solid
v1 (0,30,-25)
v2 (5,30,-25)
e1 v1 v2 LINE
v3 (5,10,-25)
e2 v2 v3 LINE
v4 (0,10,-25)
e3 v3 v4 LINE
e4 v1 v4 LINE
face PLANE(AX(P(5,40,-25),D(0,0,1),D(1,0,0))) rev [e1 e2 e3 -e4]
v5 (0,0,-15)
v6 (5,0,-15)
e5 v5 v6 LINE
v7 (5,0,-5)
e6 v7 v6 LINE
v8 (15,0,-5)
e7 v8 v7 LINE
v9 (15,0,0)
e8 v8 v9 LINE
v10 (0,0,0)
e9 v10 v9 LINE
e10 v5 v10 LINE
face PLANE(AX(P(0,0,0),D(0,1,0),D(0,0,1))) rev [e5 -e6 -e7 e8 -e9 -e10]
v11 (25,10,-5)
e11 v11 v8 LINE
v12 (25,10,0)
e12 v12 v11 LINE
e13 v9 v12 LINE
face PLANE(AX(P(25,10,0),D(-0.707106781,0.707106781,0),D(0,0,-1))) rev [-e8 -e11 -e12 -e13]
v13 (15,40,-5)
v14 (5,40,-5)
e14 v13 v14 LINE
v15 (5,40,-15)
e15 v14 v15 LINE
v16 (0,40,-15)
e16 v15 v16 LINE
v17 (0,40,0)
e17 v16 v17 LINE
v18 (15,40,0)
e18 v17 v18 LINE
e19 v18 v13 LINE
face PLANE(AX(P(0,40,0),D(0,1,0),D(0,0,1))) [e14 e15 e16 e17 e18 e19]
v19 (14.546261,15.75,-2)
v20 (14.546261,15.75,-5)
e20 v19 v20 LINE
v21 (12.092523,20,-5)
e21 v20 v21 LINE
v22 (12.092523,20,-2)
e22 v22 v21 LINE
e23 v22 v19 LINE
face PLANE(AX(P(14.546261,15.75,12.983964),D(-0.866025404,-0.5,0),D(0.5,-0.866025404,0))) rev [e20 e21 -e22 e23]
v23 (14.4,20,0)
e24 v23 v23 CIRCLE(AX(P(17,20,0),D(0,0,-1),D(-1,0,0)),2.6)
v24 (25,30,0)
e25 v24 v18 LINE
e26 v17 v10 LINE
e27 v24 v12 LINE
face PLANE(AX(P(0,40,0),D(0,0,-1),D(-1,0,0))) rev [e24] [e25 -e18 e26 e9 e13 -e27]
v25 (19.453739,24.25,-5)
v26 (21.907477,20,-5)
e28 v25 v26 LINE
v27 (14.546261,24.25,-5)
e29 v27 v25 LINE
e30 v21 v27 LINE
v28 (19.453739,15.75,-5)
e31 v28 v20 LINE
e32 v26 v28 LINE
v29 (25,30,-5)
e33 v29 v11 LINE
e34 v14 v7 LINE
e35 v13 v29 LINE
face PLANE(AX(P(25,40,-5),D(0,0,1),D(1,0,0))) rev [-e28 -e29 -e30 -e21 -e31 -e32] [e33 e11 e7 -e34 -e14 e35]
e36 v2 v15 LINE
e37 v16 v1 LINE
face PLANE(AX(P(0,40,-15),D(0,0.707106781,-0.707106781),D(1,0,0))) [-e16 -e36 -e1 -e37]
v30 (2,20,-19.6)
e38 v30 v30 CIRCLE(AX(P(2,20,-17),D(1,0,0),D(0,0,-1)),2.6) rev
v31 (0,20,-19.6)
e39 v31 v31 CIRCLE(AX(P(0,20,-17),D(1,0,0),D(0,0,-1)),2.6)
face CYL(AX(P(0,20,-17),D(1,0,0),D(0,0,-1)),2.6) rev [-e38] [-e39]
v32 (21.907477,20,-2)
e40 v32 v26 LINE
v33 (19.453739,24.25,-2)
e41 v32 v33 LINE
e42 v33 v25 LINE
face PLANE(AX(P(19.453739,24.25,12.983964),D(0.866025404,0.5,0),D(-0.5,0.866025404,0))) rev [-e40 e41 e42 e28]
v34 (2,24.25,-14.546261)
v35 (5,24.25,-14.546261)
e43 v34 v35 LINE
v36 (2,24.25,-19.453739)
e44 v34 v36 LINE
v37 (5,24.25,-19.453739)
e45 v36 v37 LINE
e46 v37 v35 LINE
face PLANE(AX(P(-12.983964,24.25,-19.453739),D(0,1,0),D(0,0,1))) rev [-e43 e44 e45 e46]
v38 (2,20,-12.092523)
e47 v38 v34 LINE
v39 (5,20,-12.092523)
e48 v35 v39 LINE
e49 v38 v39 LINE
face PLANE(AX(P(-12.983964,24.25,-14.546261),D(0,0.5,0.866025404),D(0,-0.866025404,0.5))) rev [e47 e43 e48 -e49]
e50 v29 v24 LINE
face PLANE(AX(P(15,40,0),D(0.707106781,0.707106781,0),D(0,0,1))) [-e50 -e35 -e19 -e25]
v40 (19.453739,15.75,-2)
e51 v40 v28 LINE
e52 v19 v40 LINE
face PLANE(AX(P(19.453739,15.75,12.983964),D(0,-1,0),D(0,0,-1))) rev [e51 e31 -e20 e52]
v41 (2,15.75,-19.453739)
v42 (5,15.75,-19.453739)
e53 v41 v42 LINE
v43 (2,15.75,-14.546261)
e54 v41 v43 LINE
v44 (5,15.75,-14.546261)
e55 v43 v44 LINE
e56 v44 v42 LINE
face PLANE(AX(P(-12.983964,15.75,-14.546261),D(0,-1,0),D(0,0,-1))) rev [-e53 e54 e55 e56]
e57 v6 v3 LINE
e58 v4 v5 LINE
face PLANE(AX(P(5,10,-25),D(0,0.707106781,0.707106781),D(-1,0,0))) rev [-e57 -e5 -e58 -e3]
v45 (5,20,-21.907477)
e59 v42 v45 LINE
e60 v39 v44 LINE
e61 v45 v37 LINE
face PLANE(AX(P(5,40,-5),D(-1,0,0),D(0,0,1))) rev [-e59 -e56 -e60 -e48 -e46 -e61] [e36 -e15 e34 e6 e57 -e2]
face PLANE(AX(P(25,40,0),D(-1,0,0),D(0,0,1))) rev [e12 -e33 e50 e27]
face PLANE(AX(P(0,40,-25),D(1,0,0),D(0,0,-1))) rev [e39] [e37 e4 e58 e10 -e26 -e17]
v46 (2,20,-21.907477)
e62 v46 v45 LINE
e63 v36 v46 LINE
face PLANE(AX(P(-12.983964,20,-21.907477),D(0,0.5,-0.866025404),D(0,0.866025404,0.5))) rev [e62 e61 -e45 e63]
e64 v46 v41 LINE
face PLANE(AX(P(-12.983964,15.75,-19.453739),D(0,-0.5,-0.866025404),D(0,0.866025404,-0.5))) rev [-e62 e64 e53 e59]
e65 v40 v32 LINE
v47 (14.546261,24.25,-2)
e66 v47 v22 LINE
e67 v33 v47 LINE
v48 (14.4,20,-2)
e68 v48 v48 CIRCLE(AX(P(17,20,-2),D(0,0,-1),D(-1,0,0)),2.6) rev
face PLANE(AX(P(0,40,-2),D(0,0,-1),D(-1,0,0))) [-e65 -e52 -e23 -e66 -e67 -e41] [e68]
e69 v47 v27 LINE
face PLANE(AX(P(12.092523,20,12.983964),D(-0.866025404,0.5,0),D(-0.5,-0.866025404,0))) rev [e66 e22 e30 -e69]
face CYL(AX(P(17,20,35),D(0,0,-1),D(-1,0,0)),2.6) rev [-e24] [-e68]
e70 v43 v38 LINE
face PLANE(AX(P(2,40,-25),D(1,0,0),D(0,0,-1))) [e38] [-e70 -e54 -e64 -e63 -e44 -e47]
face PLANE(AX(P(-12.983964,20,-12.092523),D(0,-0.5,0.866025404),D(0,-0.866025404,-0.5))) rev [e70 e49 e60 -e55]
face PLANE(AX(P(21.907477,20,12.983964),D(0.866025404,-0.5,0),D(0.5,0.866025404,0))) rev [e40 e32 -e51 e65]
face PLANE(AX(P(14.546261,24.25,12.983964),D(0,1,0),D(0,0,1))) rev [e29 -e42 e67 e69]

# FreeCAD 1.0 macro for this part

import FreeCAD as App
import Part
import Sketcher

V = App.Vector
Q = App.Units.Quantity


def edges_at(feature, points):
    """Names of the edges that pass closest to the given points."""
    edges = feature.Shape.Edges
    near = lambda p: min(range(len(edges)), key=lambda i: edges[i].distToShape(Part.Vertex(*p))[0])
    return sorted({f"Edge{near(p) + 1}" for p in points})


def add_polygon(sketch, points):
    """Adds a closed chain of lines whose ends are joined by coincident constraints."""
    first, n = sketch.GeometryCount, len(points)
    for a, b in zip(points, points[1:] + points[:1]):
        sketch.addGeometry(Part.LineSegment(App.Vector(*a, 0), App.Vector(*b, 0)), False)
    for i in range(n):
        sketch.addConstraint(Sketcher.Constraint("Coincident", first + i, 2, first + (i + 1) % n, 1))

doc = App.newDocument("Part")
body = doc.addObject("PartDesign::Body", "Body")

# Sketch on XZ plane
sketch1 = doc.addObject("Sketcher::SketchObject", "Sketch")
body.addObject(sketch1)
sketch1.AttachmentSupport = (doc.XZ_Plane, [""])
sketch1.MapMode = "FlatFace"
add_polygon(sketch1, [(0, 0), (25, 0), (25, -5), (5, -5), (5, -25), (0, -25)])  # lines 0-5
sketch1.addConstraint(Sketcher.Constraint("Horizontal", 0))
sketch1.addConstraint(Sketcher.Constraint("Vertical", 1))
sketch1.addConstraint(Sketcher.Constraint("Horizontal", 2))
sketch1.addConstraint(Sketcher.Constraint("Vertical", 3))
sketch1.addConstraint(Sketcher.Constraint("Horizontal", 4))
sketch1.addConstraint(Sketcher.Constraint("Vertical", 5))
sketch1.addConstraint(Sketcher.Constraint("Coincident", 5, 2, -1, 1))
sketch1.addConstraint(Sketcher.Constraint("Equal", 4, 1))
sketch1.addConstraint(Sketcher.Constraint("Equal", 2, 3))
sketch1.addConstraint(Sketcher.Constraint("DistanceX", 0, 1, 0, 2, 25.0))
sketch1.addConstraint(Sketcher.Constraint("DistanceX", 2, 2, 2, 1, 20.0))
pad1 = doc.addObject("PartDesign::Pad", "Pad")
body.addObject(pad1)
pad1.Profile = sketch1
pad1.Length = 40
pad1.Reversed = True

# Sketch on XY plane
sketch2 = doc.addObject("Sketcher::SketchObject", "Sketch001")
body.addObject(sketch2)
sketch2.AttachmentSupport = (doc.XY_Plane, [""])
sketch2.MapMode = "FlatFace"
sketch2.AttachmentOffset = App.Placement(V(0, 0, -5), App.Rotation())
sketch2.addGeometry(Part.Circle(V(17, 20, 0), V(0, 0, 1), 2.6), False)
sketch2.addConstraint(Sketcher.Constraint("Diameter", 0, 5.2))
sketch2.addConstraint(Sketcher.Constraint("DistanceX", -1, 1, 0, 3, 17.0))
sketch2.addConstraint(Sketcher.Constraint("DistanceY", -1, 1, 0, 3, 20.0))
pocket1 = doc.addObject("PartDesign::Pocket", "Pocket")
body.addObject(pocket1)
pocket1.Profile = sketch2
pocket1.Length = 40
pocket1.Reversed = True

# Sketch on XY plane
sketch3 = doc.addObject("Sketcher::SketchObject", "Sketch002")
body.addObject(sketch3)
sketch3.AttachmentSupport = (doc.XY_Plane, [""])
sketch3.MapMode = "FlatFace"
sketch3.AttachmentOffset = App.Placement(V(0, 0, -5), App.Rotation())
add_polygon(sketch3, [(14.5, 24.2), (19.5, 24.2), (21.9, 20), (19.5, 15.8), (14.5, 15.8), (12.1, 20)])  # lines 0-5
sketch3.addConstraint(Sketcher.Constraint("Horizontal", 0))
sketch3.addConstraint(Sketcher.Constraint("Horizontal", 3))
sketch3.addConstraint(Sketcher.Constraint("Parallel", 1, 4))
sketch3.addConstraint(Sketcher.Constraint("Parallel", 2, 5))
sketch3.addConstraint(Sketcher.Constraint("Horizontal", 1, 2, 4, 2))
sketch3.addConstraint(Sketcher.Constraint("Vertical", 0, 2, 2, 2))
sketch3.addConstraint(Sketcher.Constraint("Vertical", 3, 2, 5, 2))
sketch3.addConstraint(Sketcher.Constraint("Angle", 1, Q("-60 deg")))
sketch3.addConstraint(Sketcher.Constraint("DistanceY", -1, 1, 1, 2, 20.0))
sketch3.addConstraint(Sketcher.Constraint("DistanceY", 2, 2, 0, 2, 8.5))
sketch3.addConstraint(Sketcher.Constraint("DistanceX", 0, 1, 0, 2, 4.907477))
sketch3.addConstraint(Sketcher.Constraint("DistanceX", -1, 1, 0, 2, 19.453739))
pocket2 = doc.addObject("PartDesign::Pocket", "Pocket001")
body.addObject(pocket2)
pocket2.Profile = sketch3
pocket2.Length = 3
pocket2.Reversed = True

# Sketch on YZ plane
sketch4 = doc.addObject("Sketcher::SketchObject", "Sketch003")
body.addObject(sketch4)
sketch4.AttachmentSupport = (doc.YZ_Plane, [""])
sketch4.MapMode = "FlatFace"
sketch4.AttachmentOffset = App.Placement(V(0, 0, 5), App.Rotation())
sketch4.addGeometry(Part.Circle(V(20, -17, 0), V(0, 0, 1), 2.6), False)
sketch4.addConstraint(Sketcher.Constraint("Diameter", 0, 5.2))
sketch4.addConstraint(Sketcher.Constraint("DistanceX", -1, 1, 0, 3, 20.0))
sketch4.addConstraint(Sketcher.Constraint("DistanceY", 0, 3, -1, 1, 17.0))
pocket3 = doc.addObject("PartDesign::Pocket", "Pocket002")
body.addObject(pocket3)
pocket3.Profile = sketch4
pocket3.Type = "ThroughAll"
pocket3.Midplane = True

# Sketch on YZ plane
sketch5 = doc.addObject("Sketcher::SketchObject", "Sketch004")
body.addObject(sketch5)
sketch5.AttachmentSupport = (doc.YZ_Plane, [""])
sketch5.MapMode = "FlatFace"
sketch5.AttachmentOffset = App.Placement(V(0, 0, 5), App.Rotation())
add_polygon(sketch5, [(24.2, -19.5), (24.2, -14.5), (20, -12.1), (15.8, -14.5), (15.8, -19.5), (20, -21.9)])  # lines 0-5
sketch5.addConstraint(Sketcher.Constraint("Vertical", 0))
sketch5.addConstraint(Sketcher.Constraint("Vertical", 3))
sketch5.addConstraint(Sketcher.Constraint("Parallel", 1, 4))
sketch5.addConstraint(Sketcher.Constraint("Parallel", 2, 5))
sketch5.addConstraint(Sketcher.Constraint("Horizontal", 0, 2, 2, 2))
sketch5.addConstraint(Sketcher.Constraint("Horizontal", 3, 2, 5, 2))
sketch5.addConstraint(Sketcher.Constraint("Vertical", 1, 2, 4, 2))
sketch5.addConstraint(Sketcher.Constraint("Angle", 1, Q("150 deg")))
sketch5.addConstraint(Sketcher.Constraint("DistanceX", -1, 1, 1, 2, 20.0))
sketch5.addConstraint(Sketcher.Constraint("DistanceX", 2, 2, 0, 2, 8.5))
sketch5.addConstraint(Sketcher.Constraint("DistanceY", 0, 1, 0, 2, 4.907477))
sketch5.addConstraint(Sketcher.Constraint("DistanceY", 0, 2, -1, 1, 14.546261))
pocket4 = doc.addObject("PartDesign::Pocket", "Pocket003")
body.addObject(pocket4)
pocket4.Profile = sketch5
pocket4.Length = 3
doc.recompute()

chamfer = doc.addObject("PartDesign::Chamfer", "Chamfer")
body.addObject(chamfer)
chamfer.Base = (pocket4, edges_at(pocket4, [
    (25, 40, -2.5),
    (2.5, 40, -25),
    (2.5, 0, -25),
    (25, 0, -2.5),
]))
chamfer.Size = 10

doc.recompute()
